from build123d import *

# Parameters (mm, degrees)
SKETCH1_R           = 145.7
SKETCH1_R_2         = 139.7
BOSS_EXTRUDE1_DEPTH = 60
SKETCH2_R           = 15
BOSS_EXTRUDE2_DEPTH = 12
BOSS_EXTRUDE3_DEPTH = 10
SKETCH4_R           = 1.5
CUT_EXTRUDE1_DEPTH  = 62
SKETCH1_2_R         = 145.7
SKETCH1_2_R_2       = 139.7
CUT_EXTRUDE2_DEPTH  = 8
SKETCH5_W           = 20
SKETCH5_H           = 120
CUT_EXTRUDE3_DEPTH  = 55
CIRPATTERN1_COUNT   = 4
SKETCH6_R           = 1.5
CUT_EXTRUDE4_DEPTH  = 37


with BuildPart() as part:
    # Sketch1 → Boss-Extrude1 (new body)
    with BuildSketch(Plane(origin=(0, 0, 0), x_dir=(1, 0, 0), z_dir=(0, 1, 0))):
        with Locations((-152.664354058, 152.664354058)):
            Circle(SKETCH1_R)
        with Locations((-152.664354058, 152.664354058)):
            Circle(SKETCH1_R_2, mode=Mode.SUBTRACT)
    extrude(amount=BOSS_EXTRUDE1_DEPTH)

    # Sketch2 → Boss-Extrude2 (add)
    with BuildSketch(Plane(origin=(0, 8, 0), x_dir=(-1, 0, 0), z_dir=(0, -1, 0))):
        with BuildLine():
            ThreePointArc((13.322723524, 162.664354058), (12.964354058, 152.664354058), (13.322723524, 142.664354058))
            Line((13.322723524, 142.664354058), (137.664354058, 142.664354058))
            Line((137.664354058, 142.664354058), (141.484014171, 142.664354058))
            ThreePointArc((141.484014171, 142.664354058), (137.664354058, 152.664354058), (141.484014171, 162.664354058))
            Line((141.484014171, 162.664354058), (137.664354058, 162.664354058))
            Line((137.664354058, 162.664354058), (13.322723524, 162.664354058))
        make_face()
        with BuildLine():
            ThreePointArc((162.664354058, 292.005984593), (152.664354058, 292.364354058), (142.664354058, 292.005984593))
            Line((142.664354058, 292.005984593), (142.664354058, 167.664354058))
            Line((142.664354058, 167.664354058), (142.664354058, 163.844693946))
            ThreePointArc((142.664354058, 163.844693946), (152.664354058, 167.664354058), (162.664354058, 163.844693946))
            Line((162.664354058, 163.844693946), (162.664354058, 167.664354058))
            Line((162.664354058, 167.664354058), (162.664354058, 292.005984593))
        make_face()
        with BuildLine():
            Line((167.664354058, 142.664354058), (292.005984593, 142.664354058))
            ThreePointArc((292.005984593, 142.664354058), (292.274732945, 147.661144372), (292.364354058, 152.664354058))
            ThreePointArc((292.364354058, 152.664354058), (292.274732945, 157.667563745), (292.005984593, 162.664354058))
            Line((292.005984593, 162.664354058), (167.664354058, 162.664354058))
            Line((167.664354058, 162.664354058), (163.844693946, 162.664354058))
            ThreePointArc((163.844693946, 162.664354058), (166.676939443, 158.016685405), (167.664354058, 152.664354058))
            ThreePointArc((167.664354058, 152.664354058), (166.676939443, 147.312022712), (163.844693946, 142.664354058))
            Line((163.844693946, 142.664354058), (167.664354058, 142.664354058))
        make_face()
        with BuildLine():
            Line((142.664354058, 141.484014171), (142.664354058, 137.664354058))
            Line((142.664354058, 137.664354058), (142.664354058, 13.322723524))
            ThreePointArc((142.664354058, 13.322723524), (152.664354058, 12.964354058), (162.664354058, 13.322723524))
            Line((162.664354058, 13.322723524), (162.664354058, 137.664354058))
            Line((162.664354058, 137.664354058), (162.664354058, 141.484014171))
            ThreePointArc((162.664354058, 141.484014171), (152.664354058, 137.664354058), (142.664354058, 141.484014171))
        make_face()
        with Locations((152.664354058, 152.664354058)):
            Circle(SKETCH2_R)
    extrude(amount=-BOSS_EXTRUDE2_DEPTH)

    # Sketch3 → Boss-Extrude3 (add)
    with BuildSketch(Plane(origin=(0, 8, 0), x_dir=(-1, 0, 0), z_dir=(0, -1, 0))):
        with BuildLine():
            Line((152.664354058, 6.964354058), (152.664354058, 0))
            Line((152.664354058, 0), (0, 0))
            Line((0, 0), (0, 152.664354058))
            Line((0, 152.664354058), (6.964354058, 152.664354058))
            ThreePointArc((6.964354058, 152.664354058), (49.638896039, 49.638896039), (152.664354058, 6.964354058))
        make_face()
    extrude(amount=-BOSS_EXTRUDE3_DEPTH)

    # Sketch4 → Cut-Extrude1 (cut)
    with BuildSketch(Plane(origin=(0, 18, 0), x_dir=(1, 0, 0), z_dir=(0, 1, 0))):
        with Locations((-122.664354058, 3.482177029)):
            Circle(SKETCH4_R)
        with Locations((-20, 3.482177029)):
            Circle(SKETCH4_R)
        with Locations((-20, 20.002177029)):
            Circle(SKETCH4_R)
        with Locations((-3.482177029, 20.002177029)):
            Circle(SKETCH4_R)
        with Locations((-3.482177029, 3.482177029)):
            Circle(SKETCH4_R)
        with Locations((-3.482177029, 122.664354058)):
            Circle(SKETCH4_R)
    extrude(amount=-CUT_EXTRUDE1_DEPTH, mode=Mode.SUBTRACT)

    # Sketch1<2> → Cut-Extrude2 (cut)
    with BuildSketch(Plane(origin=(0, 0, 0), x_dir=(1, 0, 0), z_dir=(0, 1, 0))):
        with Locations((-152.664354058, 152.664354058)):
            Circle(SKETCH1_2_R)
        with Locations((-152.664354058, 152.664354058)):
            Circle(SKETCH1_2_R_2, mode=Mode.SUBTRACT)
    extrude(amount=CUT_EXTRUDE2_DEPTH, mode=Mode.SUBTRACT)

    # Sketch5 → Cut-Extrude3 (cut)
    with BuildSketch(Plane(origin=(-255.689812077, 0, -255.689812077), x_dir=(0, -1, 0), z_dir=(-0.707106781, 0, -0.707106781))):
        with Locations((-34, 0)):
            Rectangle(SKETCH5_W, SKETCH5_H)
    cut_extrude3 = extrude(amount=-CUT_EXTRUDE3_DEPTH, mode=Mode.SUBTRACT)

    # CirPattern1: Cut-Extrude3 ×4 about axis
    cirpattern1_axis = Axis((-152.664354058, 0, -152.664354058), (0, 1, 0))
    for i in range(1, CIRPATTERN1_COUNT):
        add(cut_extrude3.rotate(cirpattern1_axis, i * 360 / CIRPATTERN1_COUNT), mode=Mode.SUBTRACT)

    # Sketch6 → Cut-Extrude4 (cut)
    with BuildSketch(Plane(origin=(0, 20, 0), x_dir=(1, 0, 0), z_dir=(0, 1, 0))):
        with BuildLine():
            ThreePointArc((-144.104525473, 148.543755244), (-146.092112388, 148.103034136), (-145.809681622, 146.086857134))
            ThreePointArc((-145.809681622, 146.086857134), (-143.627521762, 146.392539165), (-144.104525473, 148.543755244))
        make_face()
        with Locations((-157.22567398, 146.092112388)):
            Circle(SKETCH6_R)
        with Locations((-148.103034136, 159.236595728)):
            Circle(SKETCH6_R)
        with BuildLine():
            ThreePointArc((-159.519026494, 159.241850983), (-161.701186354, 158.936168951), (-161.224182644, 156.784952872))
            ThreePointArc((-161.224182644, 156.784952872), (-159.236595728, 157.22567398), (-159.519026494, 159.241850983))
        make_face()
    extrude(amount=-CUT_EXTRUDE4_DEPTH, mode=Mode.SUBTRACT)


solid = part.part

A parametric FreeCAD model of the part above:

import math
import FreeCAD as App
import Part
import Sketcher

V = App.Vector
Q = App.Units.Quantity


def add_polygon(sketch, points):
    """Adds a closed chain of lines whose ends are joined by coincident constraints."""
    first, n = sketch.GeometryCount, len(points)
    for a, b in zip(points, points[1:] + points[:1]):
        sketch.addGeometry(Part.LineSegment(App.Vector(*a, 0), App.Vector(*b, 0)), False)
    for i in range(n):
        sketch.addConstraint(Sketcher.Constraint("Coincident", first + i, 2, first + (i + 1) % n, 1))

doc = App.newDocument("Part")
body = doc.addObject("PartDesign::Body", "Body")

# Sketch on XZ plane
sketch1 = doc.addObject("Sketcher::SketchObject", "Sketch")
body.addObject(sketch1)
sketch1.AttachmentSupport = (doc.XZ_Plane, [""])
sketch1.MapMode = "FlatFace"
sketch1.addGeometry([
    Part.Circle(V(-153, -153, 0), V(0, 0, 1), 146),
    Part.Circle(V(-153, -153, 0), V(0, 0, 1), 140),
], False)
sketch1.addConstraint([
    Sketcher.Constraint("Coincident", 1, 3, 0, 3),
    Sketcher.Constraint("Diameter", 0, Q("291.4 mm")),
    Sketcher.Constraint("Diameter", 1, Q("279.4 mm")),
    Sketcher.Constraint("DistanceX", 0, 3, -1, 1, Q("152.664354 mm")),
    Sketcher.Constraint("DistanceY", 0, 3, -1, 1, Q("152.664354 mm")),
])
pad1 = doc.addObject("PartDesign::Pad", "Pad")
body.addObject(pad1)
pad1.Profile = sketch1
pad1.Length = 60
pad1.Reversed = True

# Sketch on XZ plane
sketch2 = doc.addObject("Sketcher::SketchObject", "Sketch001")
body.addObject(sketch2)
sketch2.AttachmentSupport = (doc.XZ_Plane, [""])
sketch2.MapMode = "FlatFace"
sketch2.AttachmentOffset = App.Placement(V(0, 0, -8), App.Rotation())
sketch2.addGeometry([
    Part.ArcOfCircle(Part.Circle(V(-152.7, -152.7, 0), V(0, 0, 1), 139.7), math.radians(-4.1), math.radians(4.1)),  # 0
    Part.LineSegment(V(-13.3, -142.7, 0), V(-141.5, -142.7, 0)),  # 1
    Part.ArcOfCircle(Part.Circle(V(-152.7, -152.7, 0), V(0, 0, 1), 15), math.radians(41.81), math.radians(48.19)),  # 2
    Part.LineSegment(V(-142.7, -141.5, 0), V(-142.7, -13.3, 0)),  # 3
    Part.ArcOfCircle(Part.Circle(V(-152.7, -152.7, 0), V(0, 0, 1), 139.7), math.radians(85.9), math.radians(94.1)),  # 4
    Part.LineSegment(V(-162.7, -13.3, 0), V(-162.7, -141.5, 0)),  # 5
    Part.ArcOfCircle(Part.Circle(V(-152.7, -152.7, 0), V(0, 0, 1), 15), math.radians(131.81), math.radians(138.19)),  # 6
    Part.LineSegment(V(-163.8, -142.7, 0), V(-292, -142.7, 0)),  # 7
    Part.ArcOfCircle(Part.Circle(V(-152.7, -152.7, 0), V(0, 0, 1), 139.7), math.radians(175.9), math.radians(180)),  # 8
    Part.ArcOfCircle(Part.Circle(V(-152.7, -152.7, 0), V(0, 0, 1), 139.7), math.radians(180), math.radians(184.1)),  # 9
    Part.LineSegment(V(-292, -162.7, 0), V(-163.8, -162.7, 0)),  # 10
    Part.ArcOfCircle(Part.Circle(V(-152.7, -152.7, 0), V(0, 0, 1), 15), math.radians(-138.19), math.radians(-131.81)),  # 11
    Part.LineSegment(V(-162.7, -163.8, 0), V(-162.7, -292, 0)),  # 12
    Part.ArcOfCircle(Part.Circle(V(-152.7, -152.7, 0), V(0, 0, 1), 139.7), math.radians(-94.1), math.radians(-85.9)),  # 13
    Part.LineSegment(V(-142.7, -292, 0), V(-142.7, -163.8, 0)),  # 14
    Part.ArcOfCircle(Part.Circle(V(-152.7, -152.7, 0), V(0, 0, 1), 15), math.radians(-48.19), math.radians(-41.81)),  # 15
    Part.LineSegment(V(-141.5, -162.7, 0), V(-13.3, -162.7, 0)),  # 16
], False)
sketch2.addConstraint([
    Sketcher.Constraint("Coincident", 0, 2, 1, 1),
    Sketcher.Constraint("Coincident", 1, 2, 2, 1),
    Sketcher.Constraint("Coincident", 2, 2, 3, 1),
    Sketcher.Constraint("Coincident", 3, 2, 4, 1),
    Sketcher.Constraint("Coincident", 4, 2, 5, 1),
    Sketcher.Constraint("Coincident", 5, 2, 6, 1),
    Sketcher.Constraint("Coincident", 6, 2, 7, 1),
    Sketcher.Constraint("Coincident", 7, 2, 8, 1),
    Sketcher.Constraint("Tangent", 8, 2, 9, 1),
    Sketcher.Constraint("Coincident", 9, 2, 10, 1),
    Sketcher.Constraint("Coincident", 10, 2, 11, 1),
    Sketcher.Constraint("Coincident", 11, 2, 12, 1),
    Sketcher.Constraint("Coincident", 12, 2, 13, 1),
    Sketcher.Constraint("Coincident", 13, 2, 14, 1),
    Sketcher.Constraint("Coincident", 14, 2, 15, 1),
    Sketcher.Constraint("Coincident", 15, 2, 16, 1),
    Sketcher.Constraint("Coincident", 16, 2, 0, 1),
    Sketcher.Constraint("Horizontal", 1),
    Sketcher.Constraint("Vertical", 3),
    Sketcher.Constraint("Vertical", 5),
    Sketcher.Constraint("Horizontal", 7),
    Sketcher.Constraint("Horizontal", 10),
    Sketcher.Constraint("Vertical", 12),
    Sketcher.Constraint("Vertical", 14),
    Sketcher.Constraint("Horizontal", 16),
    Sketcher.Constraint("Coincident", 2, 3, 0, 3),
    Sketcher.Constraint("Coincident", 4, 3, 0, 3),
    Sketcher.Constraint("Coincident", 6, 3, 0, 3),
    Sketcher.Constraint("Coincident", 8, 3, 0, 3),
    Sketcher.Constraint("Coincident", 11, 3, 0, 3),
    Sketcher.Constraint("Coincident", 13, 3, 0, 3),
    Sketcher.Constraint("Coincident", 15, 3, 0, 3),
    Sketcher.Constraint("Equal", 0, 4),
    Sketcher.Constraint("Equal", 2, 6),
    Sketcher.Constraint("Equal", 4, 8),
    Sketcher.Constraint("Equal", 8, 9),
    Sketcher.Constraint("Equal", 6, 11),
    Sketcher.Constraint("Equal", 9, 13),
    Sketcher.Constraint("Equal", 11, 15),
    Sketcher.Constraint("Horizontal", 3, 2, 4, 2),
    Sketcher.Constraint("Horizontal", 1, 2, 6, 2),
    Sketcher.Constraint("Horizontal", 15, 3, 8, 2),
    Sketcher.Constraint("Horizontal", 12, 2, 13, 2),
    Sketcher.Constraint("Horizontal", 10, 2, 15, 2),
    Sketcher.Constraint("Vertical", 7, 2, 9, 2),
    Sketcher.Constraint("Vertical", 5, 2, 11, 2),
    Sketcher.Constraint("Equal", 16, 3),
    Sketcher.Constraint("Radius", 2, Q("15 mm")),
    Sketcher.Constraint("Radius", 0, Q("139.7 mm")),
    Sketcher.Constraint("DistanceY", 13, 3, 1, 2, Q("10 mm")),
    Sketcher.Constraint("DistanceX", 0, 3, -1, 1, Q("152.664354 mm")),
    Sketcher.Constraint("DistanceY", 0, 3, -1, 1, Q("152.664354 mm")),
])
pad2 = doc.addObject("PartDesign::Pad", "Pad001")
body.addObject(pad2)
pad2.Profile = sketch2
pad2.Length = 12
pad2.Reversed = True

# Sketch on XZ plane
sketch3 = doc.addObject("Sketcher::SketchObject", "Sketch002")
body.addObject(sketch3)
sketch3.AttachmentSupport = (doc.XZ_Plane, [""])
sketch3.MapMode = "FlatFace"
sketch3.AttachmentOffset = App.Placement(V(0, 0, -8), App.Rotation())
sketch3.addGeometry([
    Part.LineSegment(V(-153, 0, 0), V(-153, -7, 0)),  # 0
    Part.ArcOfCircle(Part.Circle(V(-153, -153, 0), V(0, 0, 1), 146), math.radians(0), math.radians(90)),  # 1
    Part.LineSegment(V(-7, -153, 0), V(0, -153, 0)),  # 2
    Part.LineSegment(V(0, -153, 0), V(0, 0, 0)),  # 3
    Part.LineSegment(V(0, 0, 0), V(-153, 0, 0)),  # 4
], False)
sketch3.addConstraint([
    Sketcher.Constraint("Coincident", 0, 2, 1, 2),
    Sketcher.Constraint("Coincident", 1, 1, 2, 1),
    Sketcher.Constraint("Coincident", 2, 2, 3, 1),
    Sketcher.Constraint("Coincident", 3, 2, 4, 1),
    Sketcher.Constraint("Coincident", 4, 2, 0, 1),
    Sketcher.Constraint("Vertical", 0),
    Sketcher.Constraint("Horizontal", 2),
    Sketcher.Constraint("Vertical", 3),
    Sketcher.Constraint("Horizontal", 4),
    Sketcher.Constraint("Coincident", 3, 2, -1, 1),
    Sketcher.Constraint("Vertical", 1, 3, 0, 2),
    Sketcher.Constraint("Equal", 2, 0),
    Sketcher.Constraint("Equal", 4, 3),
    Sketcher.Constraint("Radius", 1, Q("145.7 mm")),
    Sketcher.Constraint("DistanceX", 2, 1, 2, 2, Q("6.964354 mm")),
])
pad3 = doc.addObject("PartDesign::Pad", "Pad002")
body.addObject(pad3)
pad3.Profile = sketch3
pad3.Length = 10
pad3.Reversed = True

# Sketch on XZ plane
sketch4 = doc.addObject("Sketcher::SketchObject", "Sketch003")
body.addObject(sketch4)
sketch4.AttachmentSupport = (doc.XZ_Plane, [""])
sketch4.MapMode = "FlatFace"
sketch4.AttachmentOffset = App.Placement(V(0, 0, -18), App.Rotation())
sketch4.addGeometry([
    Part.Circle(V(-122.7, -3.5, 0), V(0, 0, 1), 1.5),  # 0
    Part.Circle(V(-20, -3.5, 0), V(0, 0, 1), 1.5),  # 1
    Part.Circle(V(-20, -20, 0), V(0, 0, 1), 1.5),  # 2
    Part.Circle(V(-3.5, -20, 0), V(0, 0, 1), 1.5),  # 3
    Part.Circle(V(-3.5, -3.5, 0), V(0, 0, 1), 1.5),  # 4
    Part.Circle(V(-3.5, -122.7, 0), V(0, 0, 1), 1.5),  # 5
], False)
sketch4.addConstraint([
    Sketcher.Constraint("Equal", 0, 1),
    Sketcher.Constraint("Equal", 1, 2),
    Sketcher.Constraint("Equal", 2, 3),
    Sketcher.Constraint("Equal", 3, 4),
    Sketcher.Constraint("Equal", 4, 5),
    Sketcher.Constraint("Horizontal", 0, 3, 1, 3),
    Sketcher.Constraint("Horizontal", 2, 3, 3, 3),
    Sketcher.Constraint("Horizontal", 1, 3, 4, 3),
    Sketcher.Constraint("Vertical", 1, 3, 2, 3),
    Sketcher.Constraint("Vertical", 3, 3, 4, 3),
    Sketcher.Constraint("Vertical", 4, 3, 5, 3),
    Sketcher.Constraint("Diameter", 0, Q("3 mm")),
    Sketcher.Constraint("DistanceX", 1, 3, -1, 1, Q("20 mm")),
    Sketcher.Constraint("DistanceY", 2, 3, 1, 3, Q("16.52 mm")),
    Sketcher.Constraint("DistanceX", 0, 3, -1, 1, Q("122.664354 mm")),
    Sketcher.Constraint("DistanceY", 0, 3, -1, 1, Q("3.482177 mm")),
    Sketcher.Constraint("DistanceX", 3, 3, -1, 1, Q("3.482177 mm")),
    Sketcher.Constraint("DistanceY", 5, 3, -1, 1, Q("122.664354 mm")),
])
pocket1 = doc.addObject("PartDesign::Pocket", "Pocket")
body.addObject(pocket1)
pocket1.Profile = sketch4
pocket1.Length = 62
pocket1.Reversed = True

# Sketch on XZ plane
sketch5 = doc.addObject("Sketcher::SketchObject", "Sketch004")
body.addObject(sketch5)
sketch5.AttachmentSupport = (doc.XZ_Plane, [""])
sketch5.MapMode = "FlatFace"
sketch5.addGeometry([
    Part.Circle(V(-153, -153, 0), V(0, 0, 1), 146),
    Part.Circle(V(-153, -153, 0), V(0, 0, 1), 140),
], False)
sketch5.addConstraint([
    Sketcher.Constraint("Coincident", 1, 3, 0, 3),
    Sketcher.Constraint("Diameter", 0, Q("291.4 mm")),
    Sketcher.Constraint("Diameter", 1, Q("279.4 mm")),
    Sketcher.Constraint("DistanceX", 0, 3, -1, 1, Q("152.664354 mm")),
    Sketcher.Constraint("DistanceY", 0, 3, -1, 1, Q("152.664354 mm")),
])
pocket2 = doc.addObject("PartDesign::Pocket", "Pocket001")
body.addObject(pocket2)
pocket2.Profile = sketch5
pocket2.Length = 8

# Sketch on an angled plane
sketch6 = doc.addObject("Sketcher::SketchObject", "Sketch005")
body.addObject(sketch6)
sketch6.Placement = App.Placement(V(-255.689812, 0, -255.689812), App.Rotation(V(0, -1, 0), V(-0.707106781, 0, 0.707106781), V(-0.707106781, 0, -0.707106781), "ZXY"))
add_polygon(sketch6, [(-44, 60), (-44, -60), (-24, -60), (-24, 60)])  # lines 0-3
sketch6.addConstraint([
    Sketcher.Constraint("Vertical", 0),
    Sketcher.Constraint("Horizontal", 1),
    Sketcher.Constraint("Vertical", 2),
    Sketcher.Constraint("Horizontal", 3),
    Sketcher.Constraint("DistanceX", 1, 1, 1, 2, Q("20 mm")),
    Sketcher.Constraint("DistanceY", 0, 2, 0, 1, Q("120 mm")),
    Sketcher.Constraint("DistanceX", 0, 2, -1, 1, Q("44 mm")),
    Sketcher.Constraint("DistanceY", 0, 2, -1, 1, Q("60 mm")),
])
pocket3 = doc.addObject("PartDesign::Pocket", "Pocket002")
body.addObject(pocket3)
pocket3.Profile = sketch6
pocket3.Length = 55
doc.recompute()

datumline = doc.addObject("PartDesign::Line", "DatumLine")
body.addObject(datumline)
datumline.Placement = App.Placement(V(-152.664354, 0, -152.664354), App.Rotation(V(0, 0, 1), V(0, 1, 0)))
polarpattern = doc.addObject("PartDesign::PolarPattern", "PolarPattern")
body.addObject(polarpattern)
polarpattern.Originals = [pocket3]
polarpattern.Axis = (datumline, [""])
polarpattern.Angle = 360
polarpattern.Occurrences = 4
body.Tip = polarpattern

# Sketch on XZ plane
sketch7 = doc.addObject("Sketcher::SketchObject", "Sketch006")
body.addObject(sketch7)
sketch7.AttachmentSupport = (doc.XZ_Plane, [""])
sketch7.MapMode = "FlatFace"
sketch7.AttachmentOffset = App.Placement(V(0, 0, -20), App.Rotation())
sketch7.addGeometry([
    Part.ArcOfCircle(Part.Circle(V(-144.9, -147.2, 0), V(0, 0, 1), 1.5), math.radians(129), math.radians(300)),  # 0
    Part.ArcOfCircle(Part.Circle(V(-144.9, -147.2, 0), V(0, 0, 1), 1.5), math.radians(-60), math.radians(129)),  # 1
    Part.Circle(V(-157.2, -146.1, 0), V(0, 0, 1), 1.5),  # 2
    Part.Circle(V(-148.1, -159.2, 0), V(0, 0, 1), 1.5),  # 3
    Part.ArcOfCircle(Part.Circle(V(-160.5, -158.1, 0), V(0, 0, 1), 1.5), math.radians(120), math.radians(309)),  # 4
    Part.ArcOfCircle(Part.Circle(V(-160.5, -158.1, 0), V(0, 0, 1), 1.5), math.radians(-51), math.radians(120)),  # 5
], False)
sketch7.addConstraint([
    Sketcher.Constraint("Tangent", 0, 1, 1, 2),
    Sketcher.Constraint("Coincident", 1, 1, 0, 2),
    Sketcher.Constraint("Tangent", 4, 1, 5, 2),
    Sketcher.Constraint("Coincident", 5, 1, 4, 2),
    Sketcher.Constraint("Equal", 1, 2),
    Sketcher.Constraint("Equal", 2, 3),
    Sketcher.Constraint("Equal", 3, 4),
    Sketcher.Constraint("Diameter", 2, Q("3 mm")),
    Sketcher.Constraint("DistanceY", 1, 1, 0, 1, Q("2.456898 mm")),
    Sketcher.Constraint("DistanceX", 4, 1, 0, 1, Q("15.414501 mm")),
    Sketcher.Constraint("DistanceY", 5, 1, 4, 1, Q("2.456898 mm")),
    Sketcher.Constraint("DistanceX", 4, 3, -1, 1, Q("160.468891 mm")),
    Sketcher.Constraint("DistanceY", 4, 3, -1, 1, Q("158.080921 mm")),
    Sketcher.Constraint("DistanceX", 0, 1, -1, 1, Q("145.809682 mm")),
    Sketcher.Constraint("DistanceY", 3, 3, 0, 3, Q("11.988809 mm")),
    Sketcher.Constraint("DistanceX", 2, 3, 3, 3, Q("9.12264 mm")),
    Sketcher.Constraint("DistanceY", 4, 3, 2, 3, Q("11.988809 mm")),
    Sketcher.Constraint("DistanceY", 0, 3, 0, 1, Q("1.16093 mm")),
    Sketcher.Constraint("DistanceX", 3, 3, 1, 1, Q("3.998509 mm")),
    Sketcher.Constraint("DistanceY", 0, 3, -1, 1, Q("147.247787 mm")),
])
pocket4 = doc.addObject("PartDesign::Pocket", "Pocket003")
body.addObject(pocket4)
pocket4.Profile = sketch7
pocket4.Length = 37
pocket4.Reversed = True

doc.recompute()
